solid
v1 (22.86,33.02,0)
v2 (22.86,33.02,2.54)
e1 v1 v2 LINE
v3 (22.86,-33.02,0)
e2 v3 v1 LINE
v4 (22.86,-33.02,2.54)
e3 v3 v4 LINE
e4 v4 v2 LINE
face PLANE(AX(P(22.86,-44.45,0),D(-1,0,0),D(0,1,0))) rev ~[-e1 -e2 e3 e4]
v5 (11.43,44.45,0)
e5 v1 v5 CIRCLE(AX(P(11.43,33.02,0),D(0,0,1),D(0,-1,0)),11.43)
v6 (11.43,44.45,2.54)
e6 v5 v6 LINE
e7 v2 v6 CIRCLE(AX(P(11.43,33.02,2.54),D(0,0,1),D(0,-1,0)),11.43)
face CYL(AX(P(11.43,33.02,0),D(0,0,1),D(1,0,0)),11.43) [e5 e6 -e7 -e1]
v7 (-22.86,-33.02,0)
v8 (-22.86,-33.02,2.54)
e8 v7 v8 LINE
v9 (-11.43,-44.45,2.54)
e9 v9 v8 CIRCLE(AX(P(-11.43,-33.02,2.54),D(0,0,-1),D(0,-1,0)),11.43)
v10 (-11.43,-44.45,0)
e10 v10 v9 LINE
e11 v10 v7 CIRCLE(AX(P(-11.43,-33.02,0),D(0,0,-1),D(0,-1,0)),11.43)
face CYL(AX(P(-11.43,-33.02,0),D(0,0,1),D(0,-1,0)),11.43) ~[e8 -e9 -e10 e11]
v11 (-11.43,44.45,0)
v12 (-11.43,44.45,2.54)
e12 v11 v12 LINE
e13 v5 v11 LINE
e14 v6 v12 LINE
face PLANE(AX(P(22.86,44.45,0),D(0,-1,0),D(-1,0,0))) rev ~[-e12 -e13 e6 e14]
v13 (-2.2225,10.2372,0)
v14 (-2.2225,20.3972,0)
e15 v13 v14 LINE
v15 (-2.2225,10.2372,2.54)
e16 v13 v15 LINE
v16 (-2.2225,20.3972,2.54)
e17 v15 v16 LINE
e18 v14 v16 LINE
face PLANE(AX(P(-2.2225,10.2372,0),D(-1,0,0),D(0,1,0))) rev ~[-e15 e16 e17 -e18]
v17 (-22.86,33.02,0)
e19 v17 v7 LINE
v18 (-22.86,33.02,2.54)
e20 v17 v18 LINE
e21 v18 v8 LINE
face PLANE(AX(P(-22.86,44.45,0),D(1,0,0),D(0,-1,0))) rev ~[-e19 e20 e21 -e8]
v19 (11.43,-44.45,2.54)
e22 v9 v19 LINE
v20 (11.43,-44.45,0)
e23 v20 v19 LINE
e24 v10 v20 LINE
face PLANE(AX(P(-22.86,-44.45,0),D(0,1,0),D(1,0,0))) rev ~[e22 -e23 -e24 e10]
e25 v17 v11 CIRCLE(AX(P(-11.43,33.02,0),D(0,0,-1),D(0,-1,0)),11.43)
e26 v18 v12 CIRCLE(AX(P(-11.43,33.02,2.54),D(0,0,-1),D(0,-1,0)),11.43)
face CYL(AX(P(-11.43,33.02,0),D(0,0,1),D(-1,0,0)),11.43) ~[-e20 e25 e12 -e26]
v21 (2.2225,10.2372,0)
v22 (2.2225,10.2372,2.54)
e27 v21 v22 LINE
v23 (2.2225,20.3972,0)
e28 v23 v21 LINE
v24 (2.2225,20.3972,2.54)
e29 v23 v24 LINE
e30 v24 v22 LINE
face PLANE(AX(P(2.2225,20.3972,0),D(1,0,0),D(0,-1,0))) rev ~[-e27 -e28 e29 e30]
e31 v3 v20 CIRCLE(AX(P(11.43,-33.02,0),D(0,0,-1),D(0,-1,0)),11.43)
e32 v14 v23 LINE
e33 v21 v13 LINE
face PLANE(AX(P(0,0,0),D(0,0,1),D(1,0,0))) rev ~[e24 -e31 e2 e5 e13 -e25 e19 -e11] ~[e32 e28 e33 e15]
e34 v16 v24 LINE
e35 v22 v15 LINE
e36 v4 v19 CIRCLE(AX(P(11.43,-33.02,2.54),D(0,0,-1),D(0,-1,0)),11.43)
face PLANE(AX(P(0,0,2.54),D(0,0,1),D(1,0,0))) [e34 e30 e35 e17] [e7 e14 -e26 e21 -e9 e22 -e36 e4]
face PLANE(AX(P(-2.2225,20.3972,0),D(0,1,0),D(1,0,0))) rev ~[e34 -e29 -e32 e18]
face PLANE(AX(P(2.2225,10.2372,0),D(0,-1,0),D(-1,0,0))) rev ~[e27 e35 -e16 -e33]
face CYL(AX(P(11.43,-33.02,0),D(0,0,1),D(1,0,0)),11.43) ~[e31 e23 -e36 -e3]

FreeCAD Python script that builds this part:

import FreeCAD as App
import Part
import Sketcher
from FreeCAD import Vector
Q = App.Units.Quantity


def edges_at(feature, points):
    """Names of the edges that pass closest to the given points."""
    edges = feature.Shape.Edges
    near = lambda p: min(range(len(edges)), key=lambda i: edges[i].distToShape(Part.Vertex(*p))[0])
    return sorted({f"Edge{near(p) + 1}" for p in points})


def add_polygon(sketch, points):
    """Adds a closed chain of lines whose ends are joined by coincident constraints."""
    first, n = sketch.GeometryCount, len(points)
    for a, b in zip(points, points[1:] + points[:1]):
        sketch.addGeometry(Part.LineSegment(App.Vector(*a, 0), App.Vector(*b, 0)), False)
    for i in range(n):
        sketch.addConstraint(Sketcher.Constraint("Coincident", first + i, 2, first + (i + 1) % n, 1))

doc = App.newDocument("Part")
params = doc.addObject("Spreadsheet::Sheet", "Params")
for row, (alias, value) in enumerate([
    ("sketch1_width", "1.8 in"),
    ("sketch1_height", "3.5 in"),
    ("sketch1_height2", "0.4 in"),
    ("sketch1_width2", "0.175 in"),
    ("pad1_length", "0.1 in"),
    ("fillet_radius", "0.45 in"),
], start=1):
    params.set(f"A{row}", alias)
    params.set(f"B{row}", "=" + value)
    params.setAlias(f"B{row}", alias)

body = doc.addObject("PartDesign::Body", "Body")

sketch1 = body.newObject("Sketcher::SketchObject", "Sketch")
sketch1.AttachmentSupport = (doc.getObject("XY_Plane"), [""])
sketch1.MapMode = "FlatFace"
add_polygon(sketch1, [(22.86, -44.45), (22.86, 44.45), (-22.86, 44.45), (-22.86, -44.45)])
add_polygon(sketch1, [(-2.2225, 10.2372), (-2.2225, 20.3972), (2.2225, 20.3972), (2.2225, 10.2372)])
sketch1.addConstraint(Sketcher.Constraint("Vertical", 0))
sketch1.addConstraint(Sketcher.Constraint("Horizontal", 1))
sketch1.addConstraint(Sketcher.Constraint("Vertical", 2))
sketch1.addConstraint(Sketcher.Constraint("Horizontal", 3))
sketch1.addConstraint(Sketcher.Constraint("Vertical", 4))
sketch1.addConstraint(Sketcher.Constraint("Horizontal", 5))
sketch1.addConstraint(Sketcher.Constraint("Vertical", 6))
sketch1.addConstraint(Sketcher.Constraint("Horizontal", 7))
sketch1.addConstraint(Sketcher.Constraint("Symmetric", 0, 2, 2, 2, -1, 1))
sketch1.addConstraint(Sketcher.Constraint("DistanceX", 1, 2, 1, 1, Q("1.8 in")))
sketch1.addConstraint(Sketcher.Constraint("DistanceY", 0, 1, 0, 2, Q("3.5 in")))
sketch1.addConstraint(Sketcher.Constraint("DistanceY", 4, 1, 4, 2, Q("0.4 in")))
sketch1.addConstraint(Sketcher.Constraint("DistanceX", 5, 1, 5, 2, Q("0.175 in")))
sketch1.addConstraint(Sketcher.Constraint("DistanceX", 1, 2, 4, 2, Q("0.8125 in")))
sketch1.addConstraint(Sketcher.Constraint("DistanceY", -1, 1, 4, 2, Q("20.3972 mm")))
sketch1.setExpression("Constraints[17]", "Params.sketch1_width")
sketch1.setExpression("Constraints[18]", "Params.sketch1_height")
sketch1.setExpression("Constraints[19]", "Params.sketch1_height2")
sketch1.setExpression("Constraints[20]", "Params.sketch1_width2")
pad1 = body.newObject("PartDesign::Pad", "Pad")
pad1.Profile = sketch1
pad1.setExpression("Length", "Params.pad1_length")
doc.recompute()

fillet = body.newObject("PartDesign::Fillet", "Fillet")
fillet.Base = (pad1, edges_at(pad1, [
    (22.86, 44.45, 1.27),
    (22.86, -44.45, 1.27),
    (-22.86, -44.45, 1.27),
    (-22.86, 44.45, 1.27),
]))
fillet.setExpression("Radius", "Params.fillet_radius")

doc.recompute()
